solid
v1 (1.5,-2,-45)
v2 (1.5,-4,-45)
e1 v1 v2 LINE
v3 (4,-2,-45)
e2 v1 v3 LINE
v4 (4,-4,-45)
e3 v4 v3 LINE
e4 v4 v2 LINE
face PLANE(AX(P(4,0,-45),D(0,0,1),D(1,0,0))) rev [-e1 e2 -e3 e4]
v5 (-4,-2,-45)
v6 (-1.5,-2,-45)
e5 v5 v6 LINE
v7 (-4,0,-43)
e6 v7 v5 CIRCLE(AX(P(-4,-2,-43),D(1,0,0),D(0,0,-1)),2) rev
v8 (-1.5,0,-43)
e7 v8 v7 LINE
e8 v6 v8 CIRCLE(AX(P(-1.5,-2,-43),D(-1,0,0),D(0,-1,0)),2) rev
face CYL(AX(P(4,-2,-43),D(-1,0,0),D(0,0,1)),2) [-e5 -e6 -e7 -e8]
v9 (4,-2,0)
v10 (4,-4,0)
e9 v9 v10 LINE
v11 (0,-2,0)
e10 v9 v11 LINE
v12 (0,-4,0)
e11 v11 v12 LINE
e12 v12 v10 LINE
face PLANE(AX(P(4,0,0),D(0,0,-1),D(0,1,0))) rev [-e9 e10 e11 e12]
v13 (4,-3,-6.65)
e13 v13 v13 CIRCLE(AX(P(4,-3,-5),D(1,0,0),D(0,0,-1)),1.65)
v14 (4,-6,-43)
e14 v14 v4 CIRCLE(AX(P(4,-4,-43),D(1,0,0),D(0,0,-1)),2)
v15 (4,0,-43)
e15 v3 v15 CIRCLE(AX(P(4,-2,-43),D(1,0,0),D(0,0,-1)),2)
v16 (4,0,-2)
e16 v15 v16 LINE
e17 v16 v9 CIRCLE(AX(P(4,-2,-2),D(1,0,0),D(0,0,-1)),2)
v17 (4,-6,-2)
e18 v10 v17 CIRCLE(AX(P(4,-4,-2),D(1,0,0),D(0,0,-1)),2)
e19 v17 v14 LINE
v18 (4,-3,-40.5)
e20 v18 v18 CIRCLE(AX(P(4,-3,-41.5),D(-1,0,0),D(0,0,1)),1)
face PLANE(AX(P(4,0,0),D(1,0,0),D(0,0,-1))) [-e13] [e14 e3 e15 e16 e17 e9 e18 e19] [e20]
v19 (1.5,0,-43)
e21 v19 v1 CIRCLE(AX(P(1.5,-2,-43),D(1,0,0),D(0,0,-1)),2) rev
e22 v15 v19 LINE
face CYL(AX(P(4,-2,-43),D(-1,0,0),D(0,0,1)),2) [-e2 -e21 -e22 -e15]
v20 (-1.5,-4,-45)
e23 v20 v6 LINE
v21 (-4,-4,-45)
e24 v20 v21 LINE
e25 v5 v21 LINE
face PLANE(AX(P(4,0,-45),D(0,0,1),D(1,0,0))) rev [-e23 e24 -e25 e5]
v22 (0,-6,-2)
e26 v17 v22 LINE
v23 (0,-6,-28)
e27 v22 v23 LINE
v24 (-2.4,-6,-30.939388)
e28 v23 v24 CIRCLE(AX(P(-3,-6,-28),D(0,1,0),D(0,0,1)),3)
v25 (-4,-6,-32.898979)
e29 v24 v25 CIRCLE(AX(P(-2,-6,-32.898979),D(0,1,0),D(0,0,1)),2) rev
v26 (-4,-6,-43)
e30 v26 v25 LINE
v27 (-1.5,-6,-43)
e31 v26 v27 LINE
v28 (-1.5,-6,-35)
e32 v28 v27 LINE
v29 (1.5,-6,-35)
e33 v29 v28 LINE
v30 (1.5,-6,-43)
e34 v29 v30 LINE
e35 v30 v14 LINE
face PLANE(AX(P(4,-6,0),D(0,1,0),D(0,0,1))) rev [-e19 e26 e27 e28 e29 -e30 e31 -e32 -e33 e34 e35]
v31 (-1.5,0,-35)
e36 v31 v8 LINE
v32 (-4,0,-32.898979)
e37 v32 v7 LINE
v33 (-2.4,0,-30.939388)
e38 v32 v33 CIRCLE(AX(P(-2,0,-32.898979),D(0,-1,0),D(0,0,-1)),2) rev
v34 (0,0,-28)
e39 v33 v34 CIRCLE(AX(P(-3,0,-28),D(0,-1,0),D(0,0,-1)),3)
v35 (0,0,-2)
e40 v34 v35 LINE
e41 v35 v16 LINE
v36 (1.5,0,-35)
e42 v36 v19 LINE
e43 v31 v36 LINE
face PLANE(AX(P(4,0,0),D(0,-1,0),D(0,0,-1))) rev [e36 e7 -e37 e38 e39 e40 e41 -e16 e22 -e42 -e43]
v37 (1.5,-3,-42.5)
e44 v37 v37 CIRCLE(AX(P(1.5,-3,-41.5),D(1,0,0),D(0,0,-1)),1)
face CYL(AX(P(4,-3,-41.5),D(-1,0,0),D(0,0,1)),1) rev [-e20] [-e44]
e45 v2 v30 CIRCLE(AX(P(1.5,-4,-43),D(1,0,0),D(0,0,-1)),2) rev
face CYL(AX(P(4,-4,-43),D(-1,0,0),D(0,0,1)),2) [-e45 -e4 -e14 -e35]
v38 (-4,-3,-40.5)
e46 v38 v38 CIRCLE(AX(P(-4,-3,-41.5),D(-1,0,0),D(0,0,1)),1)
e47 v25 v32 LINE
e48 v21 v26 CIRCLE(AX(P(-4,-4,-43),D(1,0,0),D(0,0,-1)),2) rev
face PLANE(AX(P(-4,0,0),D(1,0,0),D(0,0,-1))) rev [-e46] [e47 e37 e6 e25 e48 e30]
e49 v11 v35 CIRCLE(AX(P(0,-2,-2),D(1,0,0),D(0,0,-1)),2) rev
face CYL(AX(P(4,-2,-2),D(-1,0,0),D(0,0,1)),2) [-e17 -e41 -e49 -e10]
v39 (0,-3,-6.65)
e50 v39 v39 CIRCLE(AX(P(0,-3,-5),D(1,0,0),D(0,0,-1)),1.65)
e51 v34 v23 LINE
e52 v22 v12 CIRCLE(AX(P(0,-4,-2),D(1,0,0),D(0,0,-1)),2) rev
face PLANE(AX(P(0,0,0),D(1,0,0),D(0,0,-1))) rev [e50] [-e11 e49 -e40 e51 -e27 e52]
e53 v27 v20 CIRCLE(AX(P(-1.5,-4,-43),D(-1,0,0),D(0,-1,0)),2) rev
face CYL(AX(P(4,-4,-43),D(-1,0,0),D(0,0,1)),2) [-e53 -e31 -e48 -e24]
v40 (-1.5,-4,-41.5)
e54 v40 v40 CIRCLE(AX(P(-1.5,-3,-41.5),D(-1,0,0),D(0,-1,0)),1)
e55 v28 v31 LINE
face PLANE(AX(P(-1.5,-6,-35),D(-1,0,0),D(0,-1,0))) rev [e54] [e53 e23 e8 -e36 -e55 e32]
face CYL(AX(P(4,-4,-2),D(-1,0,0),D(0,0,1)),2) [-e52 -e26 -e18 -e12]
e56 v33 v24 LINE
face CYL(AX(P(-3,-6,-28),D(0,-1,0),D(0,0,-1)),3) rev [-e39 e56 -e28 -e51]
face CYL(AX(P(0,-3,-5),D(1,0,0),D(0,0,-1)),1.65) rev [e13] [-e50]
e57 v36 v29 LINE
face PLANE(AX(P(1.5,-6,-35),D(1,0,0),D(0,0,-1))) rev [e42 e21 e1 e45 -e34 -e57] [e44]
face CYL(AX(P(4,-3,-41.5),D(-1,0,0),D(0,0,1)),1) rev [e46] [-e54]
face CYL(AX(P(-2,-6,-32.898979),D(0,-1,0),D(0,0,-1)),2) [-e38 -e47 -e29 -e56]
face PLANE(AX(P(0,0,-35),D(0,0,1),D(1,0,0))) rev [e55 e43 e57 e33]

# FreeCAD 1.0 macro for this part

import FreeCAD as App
import Part
import Sketcher
from FreeCAD import Vector


def edges_at(feature, points):
    """Names of the edges that pass closest to the given points."""
    edges = feature.Shape.Edges
    near = lambda p: min(range(len(edges)), key=lambda i: edges[i].distToShape(Part.Vertex(*p))[0])
    return sorted({f"Edge{near(p) + 1}" for p in points})

doc = App.newDocument("Part")
body = doc.addObject("PartDesign::Body", "Body")

# Sketch on YZ plane
sketch1 = body.newObject("Sketcher::SketchObject", "Sketch")
sketch1.AttachmentSupport = (doc.getObject("YZ_Plane"), [""])
sketch1.MapMode = "FlatFace"
sketch1.addGeometry(Part.LineSegment(Vector(0, 0, 0), Vector(-6, 0, 0)), False)
sketch1.addGeometry(Part.LineSegment(Vector(-6, 0, 0), Vector(-6, -45, 0)), False)
sketch1.addGeometry(Part.LineSegment(Vector(-6, -45, 0), Vector(0, -45, 0)), False)
sketch1.addGeometry(Part.LineSegment(Vector(0, -45, 0), Vector(0, 0, 0)), False)
sketch1.addConstraint(Sketcher.Constraint("Coincident", 0, 2, 1, 1))
sketch1.addConstraint(Sketcher.Constraint("Coincident", 1, 2, 2, 1))
sketch1.addConstraint(Sketcher.Constraint("Coincident", 2, 2, 3, 1))
sketch1.addConstraint(Sketcher.Constraint("Coincident", 3, 2, 0, 1))
sketch1.addConstraint(Sketcher.Constraint("Horizontal", 0))
sketch1.addConstraint(Sketcher.Constraint("Vertical", 1))
sketch1.addConstraint(Sketcher.Constraint("Horizontal", 2))
sketch1.addConstraint(Sketcher.Constraint("Vertical", 3))
sketch1.addConstraint(Sketcher.Constraint("Coincident", 3, 2, -1, 1))
sketch1.addConstraint(Sketcher.Constraint("DistanceX", 0, 2, 0, 1, 6.0))
sketch1.addConstraint(Sketcher.Constraint("DistanceY", 1, 2, 1, 1, 45.0))
pad1 = body.newObject("PartDesign::Pad", "Pad")
pad1.Profile = sketch1
pad1.Length = 4

# Sketch on YZ plane
sketch2 = body.newObject("Sketcher::SketchObject", "Sketch001")
sketch2.AttachmentSupport = (doc.getObject("YZ_Plane"), [""])
sketch2.MapMode = "FlatFace"
sketch2.AttachmentOffset = App.Placement(Vector(0, 0, 4), App.Rotation())
sketch2.addGeometry(Part.Circle(Vector(-3, -5, 0), Vector(0, 0, 1), 1.6), False)
sketch2.addConstraint(Sketcher.Constraint("Diameter", 0, 3.3))
sketch2.addConstraint(Sketcher.Constraint("DistanceX", 0, 3, -1, 1, 3.0))
sketch2.addConstraint(Sketcher.Constraint("DistanceY", 0, 3, -1, 1, 5.0))
pocket1 = body.newObject("PartDesign::Pocket", "Pocket")
pocket1.Profile = sketch2
pocket1.Type = "ThroughAll"

# Sketch on YZ plane
sketch3 = body.newObject("Sketcher::SketchObject", "Sketch002")
sketch3.AttachmentSupport = (doc.getObject("YZ_Plane"), [""])
sketch3.MapMode = "FlatFace"
sketch3.addGeometry(Part.LineSegment(Vector(0, -45, 0), Vector(-6, -45, 0)), False)
sketch3.addGeometry(Part.LineSegment(Vector(-6, -45, 0), Vector(-6, -31, 0)), False)
sketch3.addGeometry(Part.LineSegment(Vector(-6, -31, 0), Vector(0, -31, 0)), False)
sketch3.addGeometry(Part.LineSegment(Vector(0, -31, 0), Vector(0, -45, 0)), False)
sketch3.addConstraint(Sketcher.Constraint("Coincident", 0, 2, 1, 1))
sketch3.addConstraint(Sketcher.Constraint("Coincident", 1, 2, 2, 1))
sketch3.addConstraint(Sketcher.Constraint("Coincident", 2, 2, 3, 1))
sketch3.addConstraint(Sketcher.Constraint("Coincident", 3, 2, 0, 1))
sketch3.addConstraint(Sketcher.Constraint("Horizontal", 0))
sketch3.addConstraint(Sketcher.Constraint("Vertical", 1))
sketch3.addConstraint(Sketcher.Constraint("Horizontal", 2))
sketch3.addConstraint(Sketcher.Constraint("Vertical", 3))
sketch3.addConstraint(Sketcher.Constraint("PointOnObject", 2, 2, -2))
sketch3.addConstraint(Sketcher.Constraint("DistanceX", 0, 2, 0, 1, 6.0))
sketch3.addConstraint(Sketcher.Constraint("DistanceY", 1, 1, 1, 2, 14.0))
sketch3.addConstraint(Sketcher.Constraint("DistanceY", 0, 2, -1, 1, 45.0))
pad2 = body.newObject("PartDesign::Pad", "Pad001")
pad2.Profile = sketch3
pad2.Length = 4
pad2.Reversed = True

# Sketch on XY plane
sketch4 = body.newObject("Sketcher::SketchObject", "Sketch003")
sketch4.AttachmentSupport = (doc.getObject("XY_Plane"), [""])
sketch4.MapMode = "FlatFace"
sketch4.AttachmentOffset = App.Placement(Vector(0, 0, -45), App.Rotation())
sketch4.addGeometry(Part.LineSegment(Vector(1.5, 0, 0), Vector(1.5, -6, 0)), False)
sketch4.addGeometry(Part.LineSegment(Vector(1.5, -6, 0), Vector(-1.5, -6, 0)), False)
sketch4.addGeometry(Part.LineSegment(Vector(-1.5, -6, 0), Vector(-1.5, 0, 0)), False)
sketch4.addGeometry(Part.LineSegment(Vector(-1.5, 0, 0), Vector(1.5, 0, 0)), False)
sketch4.addConstraint(Sketcher.Constraint("Coincident", 0, 2, 1, 1))
sketch4.addConstraint(Sketcher.Constraint("Coincident", 1, 2, 2, 1))
sketch4.addConstraint(Sketcher.Constraint("Coincident", 2, 2, 3, 1))
sketch4.addConstraint(Sketcher.Constraint("Coincident", 3, 2, 0, 1))
sketch4.addConstraint(Sketcher.Constraint("Vertical", 0))
sketch4.addConstraint(Sketcher.Constraint("Horizontal", 1))
sketch4.addConstraint(Sketcher.Constraint("Vertical", 2))
sketch4.addConstraint(Sketcher.Constraint("Horizontal", 3))
sketch4.addConstraint(Sketcher.Constraint("Symmetric", 2, 2, 3, 2, -1, 1))
sketch4.addConstraint(Sketcher.Constraint("DistanceX", 1, 2, 1, 1, 3.0))
sketch4.addConstraint(Sketcher.Constraint("DistanceY", 0, 2, 0, 1, 6.0))
pocket2 = body.newObject("PartDesign::Pocket", "Pocket001")
pocket2.Profile = sketch4
pocket2.Length = 10
pocket2.Reversed = True

# Sketch on YZ plane
sketch5 = body.newObject("Sketcher::SketchObject", "Sketch004")
sketch5.AttachmentSupport = (doc.getObject("YZ_Plane"), [""])
sketch5.MapMode = "FlatFace"
sketch5.AttachmentOffset = App.Placement(Vector(0, 0, -4), App.Rotation())
sketch5.addGeometry(Part.Circle(Vector(-3, -41.5, 0), Vector(0, 0, 1), 1), False)
sketch5.addConstraint(Sketcher.Constraint("Diameter", 0, 2.0))
sketch5.addConstraint(Sketcher.Constraint("DistanceX", 0, 3, -1, 1, 3.0))
sketch5.addConstraint(Sketcher.Constraint("DistanceY", 0, 3, -1, 1, 41.5))
pocket3 = body.newObject("PartDesign::Pocket", "Pocket002")
pocket3.Profile = sketch5
pocket3.Type = "ThroughAll"
pocket3.Reversed = True
doc.recompute()

fillet = body.newObject("PartDesign::Fillet", "Fillet")
fillet.Base = (pocket3, edges_at(pocket3, [
    (2, 0, 0),
    (2.75, 0, -45),
    (2.75, -6, -45),
    (2, -6, 0),
]))
fillet.Radius = 2
doc.recompute()

fillet2 = body.newObject("PartDesign::Fillet", "Fillet001")
fillet2.Base = (fillet, edges_at(fillet, [(0, -3, -31)]))
fillet2.Radius = 3
doc.recompute()

fillet3 = body.newObject("PartDesign::Fillet", "Fillet002")
fillet3.Base = (fillet2, edges_at(fillet2, [(-4, -3, -31)]))
fillet3.Radius = 2
doc.recompute()

fillet4 = body.newObject("PartDesign::Fillet", "Fillet003")
fillet4.Base = (fillet3, edges_at(fillet3, [(-2.75, 0, -45), (-2.75, -6, -45)]))
fillet4.Radius = 2

doc.recompute()
